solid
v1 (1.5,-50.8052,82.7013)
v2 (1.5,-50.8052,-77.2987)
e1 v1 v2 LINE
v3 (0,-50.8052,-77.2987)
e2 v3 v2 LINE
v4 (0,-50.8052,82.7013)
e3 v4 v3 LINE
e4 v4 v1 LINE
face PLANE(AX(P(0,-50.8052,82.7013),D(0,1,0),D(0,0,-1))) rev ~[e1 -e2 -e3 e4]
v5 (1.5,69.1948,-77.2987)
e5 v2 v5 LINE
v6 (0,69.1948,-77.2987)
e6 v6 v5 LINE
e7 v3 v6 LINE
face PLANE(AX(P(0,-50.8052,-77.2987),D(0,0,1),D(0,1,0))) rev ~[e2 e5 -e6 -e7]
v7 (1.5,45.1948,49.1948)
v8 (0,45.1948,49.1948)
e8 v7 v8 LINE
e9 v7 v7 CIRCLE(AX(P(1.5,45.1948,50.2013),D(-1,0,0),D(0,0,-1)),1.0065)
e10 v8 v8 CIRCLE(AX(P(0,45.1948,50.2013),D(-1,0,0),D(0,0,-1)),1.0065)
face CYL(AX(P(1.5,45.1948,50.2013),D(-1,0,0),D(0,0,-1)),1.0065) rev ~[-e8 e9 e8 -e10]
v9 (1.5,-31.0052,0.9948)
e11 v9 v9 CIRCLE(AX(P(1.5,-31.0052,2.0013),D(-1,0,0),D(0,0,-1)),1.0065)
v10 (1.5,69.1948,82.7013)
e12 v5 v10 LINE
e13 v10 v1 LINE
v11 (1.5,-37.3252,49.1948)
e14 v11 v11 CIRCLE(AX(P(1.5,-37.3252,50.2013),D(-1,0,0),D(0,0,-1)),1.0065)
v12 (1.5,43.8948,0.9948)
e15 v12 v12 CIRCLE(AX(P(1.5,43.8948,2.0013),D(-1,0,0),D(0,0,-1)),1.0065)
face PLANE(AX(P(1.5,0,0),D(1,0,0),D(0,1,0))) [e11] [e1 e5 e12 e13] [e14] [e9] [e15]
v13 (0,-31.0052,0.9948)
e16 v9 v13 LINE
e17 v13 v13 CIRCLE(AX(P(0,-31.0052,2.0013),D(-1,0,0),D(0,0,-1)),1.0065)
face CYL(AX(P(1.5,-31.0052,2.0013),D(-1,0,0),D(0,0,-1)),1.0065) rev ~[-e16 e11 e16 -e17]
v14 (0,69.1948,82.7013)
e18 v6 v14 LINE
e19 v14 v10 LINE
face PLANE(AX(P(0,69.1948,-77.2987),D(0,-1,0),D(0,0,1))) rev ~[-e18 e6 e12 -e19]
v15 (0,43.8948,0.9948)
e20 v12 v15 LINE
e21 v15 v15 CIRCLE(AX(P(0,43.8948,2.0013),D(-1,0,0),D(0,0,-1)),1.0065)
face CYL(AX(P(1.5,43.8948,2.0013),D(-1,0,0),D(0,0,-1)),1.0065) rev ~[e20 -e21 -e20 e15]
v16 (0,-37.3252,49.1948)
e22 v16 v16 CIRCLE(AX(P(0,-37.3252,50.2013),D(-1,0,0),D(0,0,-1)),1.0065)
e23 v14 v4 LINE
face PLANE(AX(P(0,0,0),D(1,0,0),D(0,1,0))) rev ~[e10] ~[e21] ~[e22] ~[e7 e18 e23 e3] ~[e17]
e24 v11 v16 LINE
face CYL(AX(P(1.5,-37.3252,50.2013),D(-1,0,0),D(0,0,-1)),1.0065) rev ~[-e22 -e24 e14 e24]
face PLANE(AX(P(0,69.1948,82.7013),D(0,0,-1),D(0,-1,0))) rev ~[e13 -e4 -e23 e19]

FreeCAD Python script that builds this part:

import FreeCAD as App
import Part
import Sketcher

V = App.Vector


def add_polygon(sketch, points):
    """Adds a closed chain of lines whose ends are joined by coincident constraints."""
    first, n = sketch.GeometryCount, len(points)
    for a, b in zip(points, points[1:] + points[:1]):
        sketch.addGeometry(Part.LineSegment(App.Vector(*a, 0), App.Vector(*b, 0)), False)
    for i in range(n):
        sketch.addConstraint(Sketcher.Constraint("Coincident", first + i, 2, first + (i + 1) % n, 1))

doc = App.newDocument("Part")
params = doc.addObject("Spreadsheet::Sheet", "Params")
for row, (alias, value) in enumerate([
    ("sketch1_width", "120 mm"),
    ("sketch1_height", "160 mm"),
    ("pad1_length", "1.5 mm"),
    ("hole_diameter", "2.013 mm"),
], start=1):
    params.set(f"A{row}", alias)
    params.set(f"B{row}", "=" + value)
    params.setAlias(f"B{row}", alias)

body = doc.addObject("PartDesign::Body", "Body")

sketch1 = doc.addObject("Sketcher::SketchObject", "Sketch")
body.addObject(sketch1)
sketch1.AttachmentSupport = (doc.YZ_Plane, [""])
sketch1.MapMode = "FlatFace"
add_polygon(sketch1, [(69.1948, -77.2987), (69.1948, 82.7013), (-50.8052, 82.7013), (-50.8052, -77.2987)])
sketch1.addConstraint([
    Sketcher.Constraint("Vertical", 0),
    Sketcher.Constraint("Horizontal", 1),
    Sketcher.Constraint("Vertical", 2),
    Sketcher.Constraint("Horizontal", 3),
    Sketcher.Constraint("DistanceX", 1, 2, 1, 1, 120.0),
    Sketcher.Constraint("DistanceY", 0, 1, 0, 2, 160.0),
    Sketcher.Constraint("DistanceX", -1, 1, 0, 2, 69.1948),
    Sketcher.Constraint("DistanceY", -1, 1, 0, 2, 82.7013),
])
sketch1.setExpression("Constraints[8]", "Params.sketch1_width")
sketch1.setExpression("Constraints[9]", "Params.sketch1_height")
pad1 = doc.addObject("PartDesign::Pad", "Pad")
body.addObject(pad1)
pad1.Profile = sketch1
pad1.setExpression("Length", "Params.pad1_length")

sketch2 = doc.addObject("Sketcher::SketchObject", "Sketch001")
body.addObject(sketch2)
sketch2.AttachmentSupport = (doc.YZ_Plane, [""])
sketch2.MapMode = "FlatFace"
sketch2.AttachmentOffset = App.Placement(V(0, 0, 1.5), App.Rotation())
sketch2.addGeometry([
    Part.Circle(V(45.1948, 50.2013, 0), V(0, 0, 1), 1.0065),
    Part.Circle(V(-37.3252, 50.2013, 0), V(0, 0, 1), 1.0065),
    Part.Circle(V(43.8948, 2.0013, 0), V(0, 0, 1), 1.0065),
    Part.Circle(V(-31.0052, 2.0013, 0), V(0, 0, 1), 1.0065),
], False)
sketch2.addConstraint([
    Sketcher.Constraint("Equal", 0, 1),
    Sketcher.Constraint("Equal", 1, 2),
    Sketcher.Constraint("Equal", 2, 3),
    Sketcher.Constraint("Horizontal", 0, 3, 1, 3),
    Sketcher.Constraint("Horizontal", 2, 3, 3, 3),
    Sketcher.Constraint("Diameter", 0, 2.013),
    Sketcher.Constraint("DistanceX", 2, 3, 0, 3, 1.3),
    Sketcher.Constraint("DistanceY", 2, 3, 0, 3, 48.2),
    Sketcher.Constraint("DistanceX", 3, 3, 2, 3, 74.9),
    Sketcher.Constraint("DistanceX", 1, 3, 0, 3, 82.52),
    Sketcher.Constraint("DistanceX", -1, 1, 0, 3, 45.1948),
    Sketcher.Constraint("DistanceY", -1, 1, 0, 3, 50.2013),
])
doc.recompute()
hole = doc.addObject("PartDesign::Hole", "Hole")
body.addObject(hole)
hole.Profile = sketch2
hole.ThreadType = "None"
hole.setExpression("Diameter", "Params.hole_diameter")
hole.DepthType = "ThroughAll"

doc.recompute()
